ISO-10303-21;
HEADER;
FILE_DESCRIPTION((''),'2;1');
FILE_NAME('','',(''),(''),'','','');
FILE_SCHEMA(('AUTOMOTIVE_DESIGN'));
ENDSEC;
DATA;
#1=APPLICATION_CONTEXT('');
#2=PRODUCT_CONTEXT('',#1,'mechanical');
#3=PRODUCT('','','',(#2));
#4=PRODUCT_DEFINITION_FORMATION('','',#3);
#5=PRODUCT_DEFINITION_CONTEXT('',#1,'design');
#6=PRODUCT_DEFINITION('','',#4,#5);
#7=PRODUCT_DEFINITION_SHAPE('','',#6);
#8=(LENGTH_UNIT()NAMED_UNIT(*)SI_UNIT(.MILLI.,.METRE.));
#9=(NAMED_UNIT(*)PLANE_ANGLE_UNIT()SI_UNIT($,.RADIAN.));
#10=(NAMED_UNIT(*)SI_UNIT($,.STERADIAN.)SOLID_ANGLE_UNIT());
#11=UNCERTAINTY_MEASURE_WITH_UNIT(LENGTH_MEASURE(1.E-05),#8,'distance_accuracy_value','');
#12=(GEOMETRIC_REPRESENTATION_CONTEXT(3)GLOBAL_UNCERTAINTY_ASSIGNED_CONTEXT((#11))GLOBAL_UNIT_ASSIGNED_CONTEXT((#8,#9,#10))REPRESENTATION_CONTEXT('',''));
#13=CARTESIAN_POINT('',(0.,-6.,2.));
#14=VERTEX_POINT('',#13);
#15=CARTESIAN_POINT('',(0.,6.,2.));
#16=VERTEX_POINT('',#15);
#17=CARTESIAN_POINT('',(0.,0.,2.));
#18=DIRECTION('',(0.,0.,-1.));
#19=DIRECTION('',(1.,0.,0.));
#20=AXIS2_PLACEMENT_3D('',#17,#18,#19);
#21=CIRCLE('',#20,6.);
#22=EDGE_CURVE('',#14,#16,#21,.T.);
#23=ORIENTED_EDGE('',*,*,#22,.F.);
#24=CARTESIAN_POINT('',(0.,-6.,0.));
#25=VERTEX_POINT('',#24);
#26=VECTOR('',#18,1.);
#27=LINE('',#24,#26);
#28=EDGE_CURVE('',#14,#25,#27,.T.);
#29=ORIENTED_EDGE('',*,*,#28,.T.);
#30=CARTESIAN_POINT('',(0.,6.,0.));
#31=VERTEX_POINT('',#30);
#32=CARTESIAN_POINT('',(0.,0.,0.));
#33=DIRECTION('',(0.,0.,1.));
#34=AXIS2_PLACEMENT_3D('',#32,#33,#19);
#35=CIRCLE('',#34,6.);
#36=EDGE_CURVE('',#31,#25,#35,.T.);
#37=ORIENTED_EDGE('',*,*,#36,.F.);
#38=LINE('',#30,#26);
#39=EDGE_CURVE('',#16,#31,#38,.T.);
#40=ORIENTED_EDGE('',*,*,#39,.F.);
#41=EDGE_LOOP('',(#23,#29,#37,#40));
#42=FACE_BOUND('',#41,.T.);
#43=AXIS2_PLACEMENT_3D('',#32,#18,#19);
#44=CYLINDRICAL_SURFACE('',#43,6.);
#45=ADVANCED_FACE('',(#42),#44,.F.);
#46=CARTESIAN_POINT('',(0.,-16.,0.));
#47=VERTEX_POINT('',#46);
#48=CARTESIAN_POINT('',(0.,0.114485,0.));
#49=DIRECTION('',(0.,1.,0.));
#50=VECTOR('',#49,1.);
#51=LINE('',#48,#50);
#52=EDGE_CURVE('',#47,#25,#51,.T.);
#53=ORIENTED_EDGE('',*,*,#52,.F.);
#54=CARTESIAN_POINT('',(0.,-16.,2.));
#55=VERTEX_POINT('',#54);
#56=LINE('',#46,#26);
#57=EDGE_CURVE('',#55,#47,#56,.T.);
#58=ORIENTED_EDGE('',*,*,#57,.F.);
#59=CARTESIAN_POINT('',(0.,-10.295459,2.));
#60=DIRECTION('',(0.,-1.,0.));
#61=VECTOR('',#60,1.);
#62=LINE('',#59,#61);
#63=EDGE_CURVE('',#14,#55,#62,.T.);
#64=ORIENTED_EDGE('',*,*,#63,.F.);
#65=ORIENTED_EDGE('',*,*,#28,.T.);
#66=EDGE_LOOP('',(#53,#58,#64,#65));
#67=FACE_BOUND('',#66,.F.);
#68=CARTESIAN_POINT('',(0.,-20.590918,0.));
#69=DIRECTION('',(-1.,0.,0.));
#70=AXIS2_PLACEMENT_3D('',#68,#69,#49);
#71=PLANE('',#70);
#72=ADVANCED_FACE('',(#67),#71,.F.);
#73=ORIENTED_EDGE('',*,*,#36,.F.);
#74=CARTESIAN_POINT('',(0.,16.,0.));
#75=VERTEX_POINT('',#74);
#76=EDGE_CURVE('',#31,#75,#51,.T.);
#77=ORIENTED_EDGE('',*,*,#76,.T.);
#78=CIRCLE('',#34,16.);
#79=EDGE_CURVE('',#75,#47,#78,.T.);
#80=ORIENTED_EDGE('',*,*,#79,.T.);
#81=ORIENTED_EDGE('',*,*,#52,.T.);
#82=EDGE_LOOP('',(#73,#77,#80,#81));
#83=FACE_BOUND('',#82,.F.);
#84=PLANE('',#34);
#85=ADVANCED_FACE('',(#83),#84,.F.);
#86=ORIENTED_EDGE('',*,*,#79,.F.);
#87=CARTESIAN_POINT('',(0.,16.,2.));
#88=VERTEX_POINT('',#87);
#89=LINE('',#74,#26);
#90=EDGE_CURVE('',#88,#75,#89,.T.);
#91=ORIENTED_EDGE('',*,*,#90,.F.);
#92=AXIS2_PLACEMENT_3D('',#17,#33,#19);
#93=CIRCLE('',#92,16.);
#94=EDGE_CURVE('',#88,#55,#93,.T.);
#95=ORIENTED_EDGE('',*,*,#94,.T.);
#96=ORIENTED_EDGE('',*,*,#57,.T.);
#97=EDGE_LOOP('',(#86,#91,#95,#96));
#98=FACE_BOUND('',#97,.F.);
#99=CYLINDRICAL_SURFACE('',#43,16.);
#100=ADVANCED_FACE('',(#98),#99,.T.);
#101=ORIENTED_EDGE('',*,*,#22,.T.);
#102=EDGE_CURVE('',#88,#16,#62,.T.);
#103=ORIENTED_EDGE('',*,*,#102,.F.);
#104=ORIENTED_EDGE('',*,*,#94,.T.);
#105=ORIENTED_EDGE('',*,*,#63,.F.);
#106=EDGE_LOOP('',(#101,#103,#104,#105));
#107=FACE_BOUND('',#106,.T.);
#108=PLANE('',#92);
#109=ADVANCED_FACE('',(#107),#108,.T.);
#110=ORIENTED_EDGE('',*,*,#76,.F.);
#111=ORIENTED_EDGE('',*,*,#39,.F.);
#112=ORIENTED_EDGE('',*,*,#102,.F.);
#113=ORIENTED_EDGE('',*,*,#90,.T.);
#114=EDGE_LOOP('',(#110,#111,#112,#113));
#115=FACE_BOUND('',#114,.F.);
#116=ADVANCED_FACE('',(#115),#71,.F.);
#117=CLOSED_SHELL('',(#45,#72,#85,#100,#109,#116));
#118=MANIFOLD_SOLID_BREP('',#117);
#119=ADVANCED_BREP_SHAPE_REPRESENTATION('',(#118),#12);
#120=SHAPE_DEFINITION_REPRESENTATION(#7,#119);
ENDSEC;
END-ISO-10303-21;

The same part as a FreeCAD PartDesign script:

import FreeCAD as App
import Part
import Sketcher
from FreeCAD import Vector


def add_polygon(sketch, points):
    """Adds a closed chain of lines whose ends are joined by coincident constraints."""
    first, n = sketch.GeometryCount, len(points)
    for a, b in zip(points, points[1:] + points[:1]):
        sketch.addGeometry(Part.LineSegment(App.Vector(*a, 0), App.Vector(*b, 0)), False)
    for i in range(n):
        sketch.addConstraint(Sketcher.Constraint("Coincident", first + i, 2, first + (i + 1) % n, 1))

doc = App.newDocument("Part")
body = doc.addObject("PartDesign::Body", "Body")

# Sketch on XY plane
sketch1 = body.newObject("Sketcher::SketchObject", "Sketch")
sketch1.AttachmentSupport = (doc.getObject("XY_Plane"), [""])
sketch1.MapMode = "FlatFace"
sketch1.addGeometry(Part.Circle(Vector(0, 0, 0), Vector(0, 0, 1), 16), False)
sketch1.addConstraint(Sketcher.Constraint("Coincident", 0, 3, -1, 1))
sketch1.addConstraint(Sketcher.Constraint("Diameter", 0, 32.0))
pad1 = body.newObject("PartDesign::Pad", "Pad")
pad1.Profile = sketch1
pad1.Length = 2

# Sketch on XY plane
sketch2 = body.newObject("Sketcher::SketchObject", "Sketch001")
sketch2.AttachmentSupport = (doc.getObject("XY_Plane"), [""])
sketch2.MapMode = "FlatFace"
sketch2.addGeometry(Part.Circle(Vector(0, 0, 0), Vector(0, 0, 1), 6), False)
sketch2.addConstraint(Sketcher.Constraint("Coincident", 0, 3, -1, 1))
sketch2.addConstraint(Sketcher.Constraint("Diameter", 0, 12.0))
pocket1 = body.newObject("PartDesign::Pocket", "Pocket")
pocket1.Profile = sketch2
pocket1.Length = 25
pocket1.Reversed = True

# Sketch on XY plane
sketch3 = body.newObject("Sketcher::SketchObject", "Sketch002")
sketch3.AttachmentSupport = (doc.getObject("XY_Plane"), [""])
sketch3.MapMode = "FlatFace"
add_polygon(sketch3, [(0, 20.819888), (0, -20.590918), (41.035842, -20.590918), (41.035842, 20.819888)])  # lines 0-3
sketch3.addConstraint(Sketcher.Constraint("Vertical", 0))
sketch3.addConstraint(Sketcher.Constraint("Horizontal", 1))
sketch3.addConstraint(Sketcher.Constraint("Vertical", 2))
sketch3.addConstraint(Sketcher.Constraint("Horizontal", 3))
sketch3.addConstraint(Sketcher.Constraint("PointOnObject", 0, 2, -2))
sketch3.addConstraint(Sketcher.Constraint("DistanceX", 1, 1, 1, 2, 41.035842))
sketch3.addConstraint(Sketcher.Constraint("DistanceY", 0, 2, 0, 1, 41.410806))
sketch3.addConstraint(Sketcher.Constraint("DistanceY", 0, 2, -1, 1, 20.590918))
pocket2 = body.newObject("PartDesign::Pocket", "Pocket001")
pocket2.Profile = sketch3
pocket2.Length = 25
pocket2.Reversed = True

doc.recompute()
